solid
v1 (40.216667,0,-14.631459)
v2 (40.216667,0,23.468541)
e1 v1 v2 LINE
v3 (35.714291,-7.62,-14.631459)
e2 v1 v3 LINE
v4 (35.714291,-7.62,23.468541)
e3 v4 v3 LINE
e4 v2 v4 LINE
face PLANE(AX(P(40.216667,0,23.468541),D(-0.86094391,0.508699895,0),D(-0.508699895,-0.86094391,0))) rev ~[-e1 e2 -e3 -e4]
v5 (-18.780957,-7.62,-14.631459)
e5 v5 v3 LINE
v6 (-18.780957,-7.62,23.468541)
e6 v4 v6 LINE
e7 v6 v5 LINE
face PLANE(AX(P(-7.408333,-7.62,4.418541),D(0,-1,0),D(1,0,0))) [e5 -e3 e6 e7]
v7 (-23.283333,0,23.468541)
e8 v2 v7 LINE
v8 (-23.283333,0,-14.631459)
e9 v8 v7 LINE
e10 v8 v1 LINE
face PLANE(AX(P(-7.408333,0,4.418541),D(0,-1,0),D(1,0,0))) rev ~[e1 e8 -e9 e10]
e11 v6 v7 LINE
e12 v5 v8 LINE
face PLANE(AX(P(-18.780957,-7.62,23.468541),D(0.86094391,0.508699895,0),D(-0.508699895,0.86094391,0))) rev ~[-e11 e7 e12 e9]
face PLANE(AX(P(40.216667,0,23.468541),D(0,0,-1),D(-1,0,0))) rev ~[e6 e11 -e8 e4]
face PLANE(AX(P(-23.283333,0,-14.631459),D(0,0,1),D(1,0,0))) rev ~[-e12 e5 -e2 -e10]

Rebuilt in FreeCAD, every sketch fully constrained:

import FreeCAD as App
import Part
import Sketcher
Q = App.Units.Quantity

doc = App.newDocument("Part")
body = doc.addObject("PartDesign::Body", "Body")

# Sketch on XZ plane
sketch1 = body.newObject("Sketcher::SketchObject", "Sketch")
sketch1.AttachmentSupport = (doc.getObject("XZ_Plane"), [""])
sketch1.MapMode = "FlatFace"
sketch1.addGeometry([
    Part.LineSegment(App.Vector(-23, 23, 0), App.Vector(-23, -15, 0)),
    Part.LineSegment(App.Vector(-23, -15, 0), App.Vector(40, -15, 0)),
    Part.LineSegment(App.Vector(40, -15, 0), App.Vector(40, 23, 0)),
    Part.LineSegment(App.Vector(40, 23, 0), App.Vector(-23, 23, 0)),
], False)
sketch1.addConstraint([
    Sketcher.Constraint("Coincident", 0, 2, 1, 1),
    Sketcher.Constraint("Coincident", 1, 2, 2, 1),
    Sketcher.Constraint("Coincident", 2, 2, 3, 1),
    Sketcher.Constraint("Coincident", 3, 2, 0, 1),
    Sketcher.Constraint("Vertical", 0),
    Sketcher.Constraint("Horizontal", 1),
    Sketcher.Constraint("Vertical", 2),
    Sketcher.Constraint("Horizontal", 3),
    Sketcher.Constraint("DistanceX", 1, 1, 1, 2, Q("2.5 in")),
    Sketcher.Constraint("DistanceY", 0, 2, 0, 1, Q("1.5 in")),
    Sketcher.Constraint("DistanceY", 0, 2, -1, 1, Q("14.631459 mm")),
    Sketcher.Constraint("DistanceX", 0, 2, -1, 1, Q("23.283333 mm")),
])
pad1 = body.newObject("PartDesign::Pad", "Pad")
pad1.Profile = sketch1
pad1.Length = Q("0.3 in")

# Sketch on XY plane
sketch2 = body.newObject("Sketcher::SketchObject", "Sketch001")
sketch2.AttachmentSupport = (doc.getObject("XY_Plane"), [""])
sketch2.MapMode = "FlatFace"
sketch2.AttachmentOffset = App.Placement(App.Vector(0, 0, 23.468541), App.Rotation())
sketch2.addGeometry([
    Part.LineSegment(App.Vector(40.2, -7.6, 0), App.Vector(40.2, 0, 0)),  # 0
    Part.LineSegment(App.Vector(40.2, 0, 0), App.Vector(35.7, -7.6, 0)),  # 1
    Part.LineSegment(App.Vector(35.7, -7.6, 0), App.Vector(40.2, -7.6, 0)),  # 2
    Part.LineSegment(App.Vector(-18.8, -7.6, 0), App.Vector(-23.3, 0, 0)),  # 3
    Part.LineSegment(App.Vector(-23.3, 0, 0), App.Vector(-23.3, -7.6, 0)),  # 4
    Part.LineSegment(App.Vector(-23.3, -7.6, 0), App.Vector(-18.8, -7.6, 0)),  # 5
], False)
sketch2.addConstraint([
    Sketcher.Constraint("Coincident", 0, 2, 1, 1),
    Sketcher.Constraint("Coincident", 1, 2, 2, 1),
    Sketcher.Constraint("Coincident", 2, 2, 0, 1),
    Sketcher.Constraint("Coincident", 3, 2, 4, 1),
    Sketcher.Constraint("Coincident", 4, 2, 5, 1),
    Sketcher.Constraint("Coincident", 5, 2, 3, 1),
    Sketcher.Constraint("Vertical", 0),
    Sketcher.Constraint("Horizontal", 2),
    Sketcher.Constraint("Vertical", 4),
    Sketcher.Constraint("Horizontal", 5),
    Sketcher.Constraint("PointOnObject", 0, 2, -1),
    Sketcher.Constraint("PointOnObject", 3, 2, -1),
    Sketcher.Constraint("Horizontal", 2, 2, 4, 2),
    Sketcher.Constraint("Equal", 2, 5),
    Sketcher.Constraint("DistanceY", 0, 1, 0, 2, Q("0.3 in")),
    Sketcher.Constraint("DistanceX", 3, 2, 0, 2, Q("2.5 in")),
    Sketcher.Constraint("Distance", 1, Q("8.850751 mm")),
    Sketcher.Constraint("DistanceX", -1, 1, 1, 2, Q("35.714291 mm")),
])
pocket1 = body.newObject("PartDesign::Pocket", "Pocket")
pocket1.Profile = sketch2
pocket1.Length = Q("1.519 in")

doc.recompute()
